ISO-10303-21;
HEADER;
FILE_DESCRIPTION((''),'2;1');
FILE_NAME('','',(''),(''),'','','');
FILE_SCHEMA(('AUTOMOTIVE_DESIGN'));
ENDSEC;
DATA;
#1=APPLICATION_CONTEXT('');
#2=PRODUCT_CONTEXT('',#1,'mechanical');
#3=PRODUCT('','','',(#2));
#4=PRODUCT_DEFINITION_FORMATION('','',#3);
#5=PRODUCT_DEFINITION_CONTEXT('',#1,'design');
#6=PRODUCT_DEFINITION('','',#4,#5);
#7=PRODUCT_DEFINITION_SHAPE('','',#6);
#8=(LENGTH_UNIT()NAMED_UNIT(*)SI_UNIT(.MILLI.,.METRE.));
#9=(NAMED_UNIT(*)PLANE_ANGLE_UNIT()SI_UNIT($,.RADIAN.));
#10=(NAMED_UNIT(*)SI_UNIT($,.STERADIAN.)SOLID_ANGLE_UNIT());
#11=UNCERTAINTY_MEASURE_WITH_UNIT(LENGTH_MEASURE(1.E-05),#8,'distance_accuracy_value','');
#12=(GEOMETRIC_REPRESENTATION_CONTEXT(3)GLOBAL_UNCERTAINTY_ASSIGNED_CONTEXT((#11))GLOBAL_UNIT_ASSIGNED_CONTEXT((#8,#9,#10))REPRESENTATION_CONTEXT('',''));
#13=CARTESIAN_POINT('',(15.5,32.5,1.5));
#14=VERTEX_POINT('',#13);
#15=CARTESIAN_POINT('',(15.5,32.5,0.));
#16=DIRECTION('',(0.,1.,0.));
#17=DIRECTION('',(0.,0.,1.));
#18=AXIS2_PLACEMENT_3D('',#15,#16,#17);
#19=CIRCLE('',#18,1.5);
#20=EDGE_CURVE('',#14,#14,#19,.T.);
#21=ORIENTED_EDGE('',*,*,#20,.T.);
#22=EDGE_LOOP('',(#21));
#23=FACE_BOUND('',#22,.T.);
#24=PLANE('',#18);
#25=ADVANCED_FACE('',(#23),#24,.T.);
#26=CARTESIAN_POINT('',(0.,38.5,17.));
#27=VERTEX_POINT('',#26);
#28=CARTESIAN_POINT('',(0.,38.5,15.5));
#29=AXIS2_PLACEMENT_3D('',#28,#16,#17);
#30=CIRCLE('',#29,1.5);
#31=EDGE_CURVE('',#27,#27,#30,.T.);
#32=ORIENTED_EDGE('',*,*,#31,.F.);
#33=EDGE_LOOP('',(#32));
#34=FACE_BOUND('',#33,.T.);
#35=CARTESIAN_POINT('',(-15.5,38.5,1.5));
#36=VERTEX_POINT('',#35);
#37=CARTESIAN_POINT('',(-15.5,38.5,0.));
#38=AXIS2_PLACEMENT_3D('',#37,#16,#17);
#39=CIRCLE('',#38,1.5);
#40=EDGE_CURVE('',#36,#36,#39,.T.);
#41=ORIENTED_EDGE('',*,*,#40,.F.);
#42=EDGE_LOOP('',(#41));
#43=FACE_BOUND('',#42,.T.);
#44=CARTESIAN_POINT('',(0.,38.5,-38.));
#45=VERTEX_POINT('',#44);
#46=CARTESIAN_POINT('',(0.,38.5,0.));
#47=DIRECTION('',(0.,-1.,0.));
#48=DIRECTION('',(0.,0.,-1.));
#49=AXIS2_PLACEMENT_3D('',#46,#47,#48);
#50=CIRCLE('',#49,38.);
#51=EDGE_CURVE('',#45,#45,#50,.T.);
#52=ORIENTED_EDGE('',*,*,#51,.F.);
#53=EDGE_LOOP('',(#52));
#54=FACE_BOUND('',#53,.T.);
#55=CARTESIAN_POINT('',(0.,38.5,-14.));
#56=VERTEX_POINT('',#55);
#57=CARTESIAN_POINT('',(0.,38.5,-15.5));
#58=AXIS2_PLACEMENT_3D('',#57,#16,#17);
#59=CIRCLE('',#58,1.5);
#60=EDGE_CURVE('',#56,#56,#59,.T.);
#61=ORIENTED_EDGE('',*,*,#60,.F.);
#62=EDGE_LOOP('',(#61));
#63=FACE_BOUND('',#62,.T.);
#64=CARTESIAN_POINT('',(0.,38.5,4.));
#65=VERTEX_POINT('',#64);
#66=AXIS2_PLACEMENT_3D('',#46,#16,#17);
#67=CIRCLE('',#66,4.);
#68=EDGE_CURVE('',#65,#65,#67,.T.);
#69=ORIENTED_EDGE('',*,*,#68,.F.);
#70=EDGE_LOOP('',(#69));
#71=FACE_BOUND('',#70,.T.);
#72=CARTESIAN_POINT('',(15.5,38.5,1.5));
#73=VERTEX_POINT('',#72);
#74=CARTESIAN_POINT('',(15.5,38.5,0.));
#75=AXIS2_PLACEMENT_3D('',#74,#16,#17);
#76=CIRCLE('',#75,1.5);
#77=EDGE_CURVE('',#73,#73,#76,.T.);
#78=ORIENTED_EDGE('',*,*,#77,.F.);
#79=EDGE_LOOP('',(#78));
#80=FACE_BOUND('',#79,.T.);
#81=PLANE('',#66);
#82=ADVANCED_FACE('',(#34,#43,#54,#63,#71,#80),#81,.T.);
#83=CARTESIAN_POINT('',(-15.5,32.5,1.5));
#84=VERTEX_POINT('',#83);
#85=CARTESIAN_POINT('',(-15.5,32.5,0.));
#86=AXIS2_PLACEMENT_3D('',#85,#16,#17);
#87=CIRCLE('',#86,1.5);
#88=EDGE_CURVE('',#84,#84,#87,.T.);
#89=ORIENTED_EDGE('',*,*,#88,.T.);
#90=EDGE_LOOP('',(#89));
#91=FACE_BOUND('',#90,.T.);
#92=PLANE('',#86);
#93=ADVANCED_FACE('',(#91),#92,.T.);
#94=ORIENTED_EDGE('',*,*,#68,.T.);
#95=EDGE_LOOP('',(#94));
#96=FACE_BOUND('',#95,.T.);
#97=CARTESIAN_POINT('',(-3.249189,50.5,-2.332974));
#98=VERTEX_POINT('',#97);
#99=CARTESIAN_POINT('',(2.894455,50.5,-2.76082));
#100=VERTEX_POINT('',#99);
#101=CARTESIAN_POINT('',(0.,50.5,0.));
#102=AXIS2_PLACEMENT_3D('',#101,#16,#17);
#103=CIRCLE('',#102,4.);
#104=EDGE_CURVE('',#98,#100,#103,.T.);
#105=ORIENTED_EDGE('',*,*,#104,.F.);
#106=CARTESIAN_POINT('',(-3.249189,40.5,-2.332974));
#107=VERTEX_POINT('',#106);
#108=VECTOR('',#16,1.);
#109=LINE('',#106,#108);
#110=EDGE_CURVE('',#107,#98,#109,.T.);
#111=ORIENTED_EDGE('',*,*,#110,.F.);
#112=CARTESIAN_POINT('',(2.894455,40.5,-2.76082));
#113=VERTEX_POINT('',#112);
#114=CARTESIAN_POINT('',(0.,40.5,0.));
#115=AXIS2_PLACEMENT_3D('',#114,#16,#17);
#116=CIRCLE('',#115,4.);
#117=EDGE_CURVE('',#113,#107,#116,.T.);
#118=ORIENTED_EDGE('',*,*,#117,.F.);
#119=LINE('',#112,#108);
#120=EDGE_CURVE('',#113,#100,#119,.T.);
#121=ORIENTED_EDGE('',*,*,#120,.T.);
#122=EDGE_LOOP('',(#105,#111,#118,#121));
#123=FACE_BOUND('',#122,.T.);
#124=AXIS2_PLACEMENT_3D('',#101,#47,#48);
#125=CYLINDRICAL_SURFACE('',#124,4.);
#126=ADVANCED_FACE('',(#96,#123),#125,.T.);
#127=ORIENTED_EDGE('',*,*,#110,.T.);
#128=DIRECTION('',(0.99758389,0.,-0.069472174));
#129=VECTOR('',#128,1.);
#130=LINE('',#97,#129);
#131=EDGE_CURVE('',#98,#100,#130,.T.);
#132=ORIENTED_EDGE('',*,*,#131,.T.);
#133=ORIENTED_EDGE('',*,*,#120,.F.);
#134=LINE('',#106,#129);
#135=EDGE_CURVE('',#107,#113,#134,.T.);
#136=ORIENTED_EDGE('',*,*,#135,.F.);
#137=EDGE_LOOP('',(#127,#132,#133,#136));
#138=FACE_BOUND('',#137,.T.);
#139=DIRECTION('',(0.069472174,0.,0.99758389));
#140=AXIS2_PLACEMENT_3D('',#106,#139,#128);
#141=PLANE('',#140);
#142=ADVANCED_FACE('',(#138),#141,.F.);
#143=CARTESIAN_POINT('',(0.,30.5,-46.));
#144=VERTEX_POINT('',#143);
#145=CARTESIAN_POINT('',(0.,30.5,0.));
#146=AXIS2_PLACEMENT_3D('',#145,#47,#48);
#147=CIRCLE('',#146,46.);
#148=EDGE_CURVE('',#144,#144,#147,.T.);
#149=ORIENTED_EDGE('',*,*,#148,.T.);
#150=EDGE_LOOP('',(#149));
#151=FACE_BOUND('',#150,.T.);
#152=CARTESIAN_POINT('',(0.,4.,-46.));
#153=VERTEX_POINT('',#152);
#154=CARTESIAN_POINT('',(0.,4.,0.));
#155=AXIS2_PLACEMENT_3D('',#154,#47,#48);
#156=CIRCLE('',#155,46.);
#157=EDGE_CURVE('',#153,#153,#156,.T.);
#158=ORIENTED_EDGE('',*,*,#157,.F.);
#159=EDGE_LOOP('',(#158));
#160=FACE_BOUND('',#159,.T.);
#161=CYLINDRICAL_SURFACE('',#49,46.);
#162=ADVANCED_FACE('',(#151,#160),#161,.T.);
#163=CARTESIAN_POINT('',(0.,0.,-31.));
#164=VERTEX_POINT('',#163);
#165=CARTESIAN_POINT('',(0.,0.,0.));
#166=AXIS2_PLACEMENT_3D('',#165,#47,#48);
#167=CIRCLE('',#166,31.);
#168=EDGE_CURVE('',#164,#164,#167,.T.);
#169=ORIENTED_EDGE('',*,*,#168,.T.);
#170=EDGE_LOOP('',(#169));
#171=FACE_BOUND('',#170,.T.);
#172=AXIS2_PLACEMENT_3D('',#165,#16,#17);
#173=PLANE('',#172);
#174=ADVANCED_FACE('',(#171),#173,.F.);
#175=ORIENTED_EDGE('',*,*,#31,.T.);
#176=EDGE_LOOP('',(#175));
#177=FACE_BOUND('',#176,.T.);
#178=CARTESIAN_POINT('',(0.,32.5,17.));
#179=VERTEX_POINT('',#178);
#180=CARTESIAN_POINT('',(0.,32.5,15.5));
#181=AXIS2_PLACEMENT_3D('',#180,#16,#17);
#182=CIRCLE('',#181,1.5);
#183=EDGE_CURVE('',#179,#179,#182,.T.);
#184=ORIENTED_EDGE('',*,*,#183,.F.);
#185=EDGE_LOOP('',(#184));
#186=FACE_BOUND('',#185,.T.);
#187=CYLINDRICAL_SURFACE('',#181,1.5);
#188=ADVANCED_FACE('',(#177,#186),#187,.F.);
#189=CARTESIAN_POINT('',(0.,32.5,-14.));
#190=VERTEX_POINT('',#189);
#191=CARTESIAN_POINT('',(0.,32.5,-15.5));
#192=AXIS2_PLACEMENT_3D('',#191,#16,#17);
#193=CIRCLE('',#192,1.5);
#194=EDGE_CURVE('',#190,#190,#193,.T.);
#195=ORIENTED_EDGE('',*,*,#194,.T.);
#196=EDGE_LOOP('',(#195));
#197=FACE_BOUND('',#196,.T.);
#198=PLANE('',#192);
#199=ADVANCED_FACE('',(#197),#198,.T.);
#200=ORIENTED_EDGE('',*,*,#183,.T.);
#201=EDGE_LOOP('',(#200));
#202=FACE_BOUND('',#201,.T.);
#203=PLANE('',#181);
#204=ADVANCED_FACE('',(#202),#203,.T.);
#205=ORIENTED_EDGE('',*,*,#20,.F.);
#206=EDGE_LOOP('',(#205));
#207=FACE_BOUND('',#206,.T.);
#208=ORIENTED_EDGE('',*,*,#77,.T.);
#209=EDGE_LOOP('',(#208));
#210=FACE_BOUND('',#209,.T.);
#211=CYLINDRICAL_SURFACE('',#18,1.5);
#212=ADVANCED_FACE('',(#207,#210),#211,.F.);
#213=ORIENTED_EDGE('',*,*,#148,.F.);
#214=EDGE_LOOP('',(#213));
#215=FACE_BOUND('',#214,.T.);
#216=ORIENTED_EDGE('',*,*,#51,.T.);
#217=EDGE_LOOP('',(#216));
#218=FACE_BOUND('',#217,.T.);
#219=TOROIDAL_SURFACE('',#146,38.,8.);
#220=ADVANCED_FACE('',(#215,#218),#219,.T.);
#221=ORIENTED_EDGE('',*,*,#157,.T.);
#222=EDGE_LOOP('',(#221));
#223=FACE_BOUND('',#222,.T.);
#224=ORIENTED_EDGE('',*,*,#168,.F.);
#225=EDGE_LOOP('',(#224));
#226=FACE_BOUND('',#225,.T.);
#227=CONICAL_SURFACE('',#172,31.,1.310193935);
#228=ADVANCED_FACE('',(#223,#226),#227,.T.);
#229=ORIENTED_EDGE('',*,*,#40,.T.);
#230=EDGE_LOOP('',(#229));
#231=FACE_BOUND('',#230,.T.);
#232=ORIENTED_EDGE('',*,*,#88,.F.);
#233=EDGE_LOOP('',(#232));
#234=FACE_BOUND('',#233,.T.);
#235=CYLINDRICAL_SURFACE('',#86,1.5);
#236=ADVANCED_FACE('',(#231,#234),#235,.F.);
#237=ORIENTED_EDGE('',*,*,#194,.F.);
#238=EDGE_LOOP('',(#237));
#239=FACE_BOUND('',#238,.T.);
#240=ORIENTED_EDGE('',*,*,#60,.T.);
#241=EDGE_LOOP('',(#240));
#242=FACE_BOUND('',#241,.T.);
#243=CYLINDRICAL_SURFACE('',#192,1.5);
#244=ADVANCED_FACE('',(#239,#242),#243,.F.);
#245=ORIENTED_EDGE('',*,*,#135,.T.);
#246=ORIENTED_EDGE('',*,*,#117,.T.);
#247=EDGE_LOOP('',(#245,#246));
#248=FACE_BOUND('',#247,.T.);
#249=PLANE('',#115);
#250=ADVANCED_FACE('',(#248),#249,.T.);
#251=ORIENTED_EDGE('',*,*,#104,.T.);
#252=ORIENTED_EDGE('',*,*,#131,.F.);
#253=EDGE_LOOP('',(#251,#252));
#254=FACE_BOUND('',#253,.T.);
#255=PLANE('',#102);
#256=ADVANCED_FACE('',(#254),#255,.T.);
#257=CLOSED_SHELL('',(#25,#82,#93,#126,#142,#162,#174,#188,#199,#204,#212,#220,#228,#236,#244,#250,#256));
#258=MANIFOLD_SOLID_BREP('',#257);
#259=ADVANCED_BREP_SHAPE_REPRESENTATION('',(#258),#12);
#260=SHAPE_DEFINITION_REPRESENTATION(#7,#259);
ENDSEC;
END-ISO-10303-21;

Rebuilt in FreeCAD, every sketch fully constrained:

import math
import FreeCAD as App
import Part
import Sketcher

V = App.Vector


def add_polygon(sketch, points):
    """Adds a closed chain of lines whose ends are joined by coincident constraints."""
    first, n = sketch.GeometryCount, len(points)
    for a, b in zip(points, points[1:] + points[:1]):
        sketch.addGeometry(Part.LineSegment(App.Vector(*a, 0), App.Vector(*b, 0)), False)
    for i in range(n):
        sketch.addConstraint(Sketcher.Constraint("Coincident", first + i, 2, first + (i + 1) % n, 1))

doc = App.newDocument("Part")
body = doc.addObject("PartDesign::Body", "Body")

# Sketch on XZ plane
sketch1 = body.newObject("Sketcher::SketchObject", "Sketch")
sketch1.AttachmentSupport = (doc.getObject("XZ_Plane"), [""])
sketch1.MapMode = "FlatFace"
sketch1.addGeometry(Part.Circle(V(0, 0, 0), V(0, 0, 1), 46), False)
sketch1.addConstraint(Sketcher.Constraint("Coincident", 0, 3, -1, 1))
sketch1.addConstraint(Sketcher.Constraint("Diameter", 0, 92.0))
pad1 = body.newObject("PartDesign::Pad", "Pad")
pad1.Profile = sketch1
pad1.Length = 38.5
pad1.Reversed = True

# Sketch on XY plane
sketch2 = body.newObject("Sketcher::SketchObject", "Sketch001")
sketch2.AttachmentSupport = (doc.getObject("XY_Plane"), [""])
sketch2.MapMode = "FlatFace"
sketch2.addGeometry(Part.LineSegment(V(-46, 38, 0), V(-46, 30, 0)), False)
sketch2.addGeometry(Part.ArcOfCircle(Part.Circle(V(-38, 30, 0), V(0, 0, 1), 8), math.radians(90), math.radians(180)), False)
sketch2.addGeometry(Part.LineSegment(V(-38, 38, 0), V(-46, 38, 0)), False)
sketch2.addConstraint(Sketcher.Constraint("Tangent", 0, 2, 1, 2))
sketch2.addConstraint(Sketcher.Constraint("Tangent", 1, 1, 2, 1))
sketch2.addConstraint(Sketcher.Constraint("Coincident", 2, 2, 0, 1))
sketch2.addConstraint(Sketcher.Constraint("Vertical", 0))
sketch2.addConstraint(Sketcher.Constraint("Horizontal", 2))
sketch2.addConstraint(Sketcher.Constraint("Radius", 1, 8.0))
sketch2.addConstraint(Sketcher.Constraint("DistanceX", 1, 3, -1, 1, 38.0))
sketch2.addConstraint(Sketcher.Constraint("DistanceY", -1, 1, 1, 3, 30.5))
groove = body.newObject("PartDesign::Groove", "Groove")
groove.Profile = sketch2
groove.ReferenceAxis = (sketch2, ["V_Axis"])
groove.Angle = 360

# Sketch on XY plane
sketch3 = body.newObject("Sketcher::SketchObject", "Sketch002")
sketch3.AttachmentSupport = (doc.getObject("XY_Plane"), [""])
sketch3.MapMode = "FlatFace"
add_polygon(sketch3, [(-46, 4), (-46, 0), (-31, 0)])  # lines 0-2
sketch3.addConstraint(Sketcher.Constraint("Vertical", 0))
sketch3.addConstraint(Sketcher.Constraint("Horizontal", 1))
sketch3.addConstraint(Sketcher.Constraint("PointOnObject", 0, 2, -1))
sketch3.addConstraint(Sketcher.Constraint("DistanceX", 1, 1, 1, 2, 15.0))
sketch3.addConstraint(Sketcher.Constraint("DistanceY", 0, 2, 0, 1, 4.0))
sketch3.addConstraint(Sketcher.Constraint("DistanceX", 0, 2, -1, 1, 46.0))
groove2 = body.newObject("PartDesign::Groove", "Groove001")
groove2.Profile = sketch3
groove2.ReferenceAxis = (sketch3, ["V_Axis"])
groove2.Angle = 360

# Sketch on XZ plane
sketch4 = body.newObject("Sketcher::SketchObject", "Sketch003")
sketch4.AttachmentSupport = (doc.getObject("XZ_Plane"), [""])
sketch4.MapMode = "FlatFace"
sketch4.AttachmentOffset = App.Placement(V(0, 0, -38.5), App.Rotation())
sketch4.addGeometry(Part.Circle(V(0, 0, 0), V(0, 0, 1), 4), False)
sketch4.addConstraint(Sketcher.Constraint("Coincident", 0, 3, -1, 1))
sketch4.addConstraint(Sketcher.Constraint("Diameter", 0, 8.0))
pad2 = body.newObject("PartDesign::Pad", "Pad001")
pad2.Profile = sketch4
pad2.Length = 12
pad2.Reversed = True

# Sketch on XZ plane
sketch5 = body.newObject("Sketcher::SketchObject", "Sketch004")
sketch5.AttachmentSupport = (doc.getObject("XZ_Plane"), [""])
sketch5.MapMode = "FlatFace"
sketch5.AttachmentOffset = App.Placement(V(0, 0, -38.5), App.Rotation())
sketch5.addGeometry(Part.Circle(V(-15.5, 0, 0), V(0, 0, 1), 1.5), False)
sketch5.addGeometry(Part.Circle(V(0, -15.5, 0), V(0, 0, 1), 1.5), False)
sketch5.addGeometry(Part.Circle(V(15.5, 0, 0), V(0, 0, 1), 1.5), False)
sketch5.addGeometry(Part.Circle(V(0, 15.5, 0), V(0, 0, 1), 1.5), False)
sketch5.addConstraint(Sketcher.Constraint("Equal", 0, 1))
sketch5.addConstraint(Sketcher.Constraint("Equal", 1, 2))
sketch5.addConstraint(Sketcher.Constraint("Equal", 2, 3))
sketch5.addConstraint(Sketcher.Constraint("Symmetric", 0, 3, 2, 3, -1, 1))
sketch5.addConstraint(Sketcher.Constraint("Symmetric", 1, 3, 3, 3, -1, 1))
sketch5.addConstraint(Sketcher.Constraint("PointOnObject", 0, 3, -1))
sketch5.addConstraint(Sketcher.Constraint("PointOnObject", 1, 3, -2))
sketch5.addConstraint(Sketcher.Constraint("Diameter", 0, 3.0))
sketch5.addConstraint(Sketcher.Constraint("DistanceX", 0, 3, 2, 3, 31.0))
sketch5.addConstraint(Sketcher.Constraint("DistanceY", 1, 3, 3, 3, 31.0))
pocket1 = body.newObject("PartDesign::Pocket", "Pocket")
pocket1.Profile = sketch5
pocket1.Length = 6
pocket1.Reversed = True

# Sketch on XZ plane
sketch6 = body.newObject("Sketcher::SketchObject", "Sketch005")
sketch6.AttachmentSupport = (doc.getObject("XZ_Plane"), [""])
sketch6.MapMode = "FlatFace"
sketch6.AttachmentOffset = App.Placement(V(0, 0, -40.5), App.Rotation())
sketch6.addGeometry(Part.LineSegment(V(-3.2, -2.3, 0), V(2.9, -2.8, 0)), False)
sketch6.addGeometry(Part.ArcOfCircle(Part.Circle(V(0, 0, 0), V(0, 0, 1), 4), math.radians(-144), math.radians(-44)), False)
sketch6.addConstraint(Sketcher.Constraint("Coincident", 0, 1, 1, 1))
sketch6.addConstraint(Sketcher.Constraint("Coincident", 1, 2, 0, 2))
sketch6.addConstraint(Sketcher.Constraint("Coincident", 1, 3, -1, 1))
sketch6.addConstraint(Sketcher.Constraint("Radius", 1, 4.0))
sketch6.addConstraint(Sketcher.Constraint("DistanceX", 0, 1, -1, 1, 3.249189))
sketch6.addConstraint(Sketcher.Constraint("DistanceY", 1, 2, -1, 1, 2.76082))
pocket2 = body.newObject("PartDesign::Pocket", "Pocket001")
pocket2.Profile = sketch6
pocket2.Length = 10

doc.recompute()
